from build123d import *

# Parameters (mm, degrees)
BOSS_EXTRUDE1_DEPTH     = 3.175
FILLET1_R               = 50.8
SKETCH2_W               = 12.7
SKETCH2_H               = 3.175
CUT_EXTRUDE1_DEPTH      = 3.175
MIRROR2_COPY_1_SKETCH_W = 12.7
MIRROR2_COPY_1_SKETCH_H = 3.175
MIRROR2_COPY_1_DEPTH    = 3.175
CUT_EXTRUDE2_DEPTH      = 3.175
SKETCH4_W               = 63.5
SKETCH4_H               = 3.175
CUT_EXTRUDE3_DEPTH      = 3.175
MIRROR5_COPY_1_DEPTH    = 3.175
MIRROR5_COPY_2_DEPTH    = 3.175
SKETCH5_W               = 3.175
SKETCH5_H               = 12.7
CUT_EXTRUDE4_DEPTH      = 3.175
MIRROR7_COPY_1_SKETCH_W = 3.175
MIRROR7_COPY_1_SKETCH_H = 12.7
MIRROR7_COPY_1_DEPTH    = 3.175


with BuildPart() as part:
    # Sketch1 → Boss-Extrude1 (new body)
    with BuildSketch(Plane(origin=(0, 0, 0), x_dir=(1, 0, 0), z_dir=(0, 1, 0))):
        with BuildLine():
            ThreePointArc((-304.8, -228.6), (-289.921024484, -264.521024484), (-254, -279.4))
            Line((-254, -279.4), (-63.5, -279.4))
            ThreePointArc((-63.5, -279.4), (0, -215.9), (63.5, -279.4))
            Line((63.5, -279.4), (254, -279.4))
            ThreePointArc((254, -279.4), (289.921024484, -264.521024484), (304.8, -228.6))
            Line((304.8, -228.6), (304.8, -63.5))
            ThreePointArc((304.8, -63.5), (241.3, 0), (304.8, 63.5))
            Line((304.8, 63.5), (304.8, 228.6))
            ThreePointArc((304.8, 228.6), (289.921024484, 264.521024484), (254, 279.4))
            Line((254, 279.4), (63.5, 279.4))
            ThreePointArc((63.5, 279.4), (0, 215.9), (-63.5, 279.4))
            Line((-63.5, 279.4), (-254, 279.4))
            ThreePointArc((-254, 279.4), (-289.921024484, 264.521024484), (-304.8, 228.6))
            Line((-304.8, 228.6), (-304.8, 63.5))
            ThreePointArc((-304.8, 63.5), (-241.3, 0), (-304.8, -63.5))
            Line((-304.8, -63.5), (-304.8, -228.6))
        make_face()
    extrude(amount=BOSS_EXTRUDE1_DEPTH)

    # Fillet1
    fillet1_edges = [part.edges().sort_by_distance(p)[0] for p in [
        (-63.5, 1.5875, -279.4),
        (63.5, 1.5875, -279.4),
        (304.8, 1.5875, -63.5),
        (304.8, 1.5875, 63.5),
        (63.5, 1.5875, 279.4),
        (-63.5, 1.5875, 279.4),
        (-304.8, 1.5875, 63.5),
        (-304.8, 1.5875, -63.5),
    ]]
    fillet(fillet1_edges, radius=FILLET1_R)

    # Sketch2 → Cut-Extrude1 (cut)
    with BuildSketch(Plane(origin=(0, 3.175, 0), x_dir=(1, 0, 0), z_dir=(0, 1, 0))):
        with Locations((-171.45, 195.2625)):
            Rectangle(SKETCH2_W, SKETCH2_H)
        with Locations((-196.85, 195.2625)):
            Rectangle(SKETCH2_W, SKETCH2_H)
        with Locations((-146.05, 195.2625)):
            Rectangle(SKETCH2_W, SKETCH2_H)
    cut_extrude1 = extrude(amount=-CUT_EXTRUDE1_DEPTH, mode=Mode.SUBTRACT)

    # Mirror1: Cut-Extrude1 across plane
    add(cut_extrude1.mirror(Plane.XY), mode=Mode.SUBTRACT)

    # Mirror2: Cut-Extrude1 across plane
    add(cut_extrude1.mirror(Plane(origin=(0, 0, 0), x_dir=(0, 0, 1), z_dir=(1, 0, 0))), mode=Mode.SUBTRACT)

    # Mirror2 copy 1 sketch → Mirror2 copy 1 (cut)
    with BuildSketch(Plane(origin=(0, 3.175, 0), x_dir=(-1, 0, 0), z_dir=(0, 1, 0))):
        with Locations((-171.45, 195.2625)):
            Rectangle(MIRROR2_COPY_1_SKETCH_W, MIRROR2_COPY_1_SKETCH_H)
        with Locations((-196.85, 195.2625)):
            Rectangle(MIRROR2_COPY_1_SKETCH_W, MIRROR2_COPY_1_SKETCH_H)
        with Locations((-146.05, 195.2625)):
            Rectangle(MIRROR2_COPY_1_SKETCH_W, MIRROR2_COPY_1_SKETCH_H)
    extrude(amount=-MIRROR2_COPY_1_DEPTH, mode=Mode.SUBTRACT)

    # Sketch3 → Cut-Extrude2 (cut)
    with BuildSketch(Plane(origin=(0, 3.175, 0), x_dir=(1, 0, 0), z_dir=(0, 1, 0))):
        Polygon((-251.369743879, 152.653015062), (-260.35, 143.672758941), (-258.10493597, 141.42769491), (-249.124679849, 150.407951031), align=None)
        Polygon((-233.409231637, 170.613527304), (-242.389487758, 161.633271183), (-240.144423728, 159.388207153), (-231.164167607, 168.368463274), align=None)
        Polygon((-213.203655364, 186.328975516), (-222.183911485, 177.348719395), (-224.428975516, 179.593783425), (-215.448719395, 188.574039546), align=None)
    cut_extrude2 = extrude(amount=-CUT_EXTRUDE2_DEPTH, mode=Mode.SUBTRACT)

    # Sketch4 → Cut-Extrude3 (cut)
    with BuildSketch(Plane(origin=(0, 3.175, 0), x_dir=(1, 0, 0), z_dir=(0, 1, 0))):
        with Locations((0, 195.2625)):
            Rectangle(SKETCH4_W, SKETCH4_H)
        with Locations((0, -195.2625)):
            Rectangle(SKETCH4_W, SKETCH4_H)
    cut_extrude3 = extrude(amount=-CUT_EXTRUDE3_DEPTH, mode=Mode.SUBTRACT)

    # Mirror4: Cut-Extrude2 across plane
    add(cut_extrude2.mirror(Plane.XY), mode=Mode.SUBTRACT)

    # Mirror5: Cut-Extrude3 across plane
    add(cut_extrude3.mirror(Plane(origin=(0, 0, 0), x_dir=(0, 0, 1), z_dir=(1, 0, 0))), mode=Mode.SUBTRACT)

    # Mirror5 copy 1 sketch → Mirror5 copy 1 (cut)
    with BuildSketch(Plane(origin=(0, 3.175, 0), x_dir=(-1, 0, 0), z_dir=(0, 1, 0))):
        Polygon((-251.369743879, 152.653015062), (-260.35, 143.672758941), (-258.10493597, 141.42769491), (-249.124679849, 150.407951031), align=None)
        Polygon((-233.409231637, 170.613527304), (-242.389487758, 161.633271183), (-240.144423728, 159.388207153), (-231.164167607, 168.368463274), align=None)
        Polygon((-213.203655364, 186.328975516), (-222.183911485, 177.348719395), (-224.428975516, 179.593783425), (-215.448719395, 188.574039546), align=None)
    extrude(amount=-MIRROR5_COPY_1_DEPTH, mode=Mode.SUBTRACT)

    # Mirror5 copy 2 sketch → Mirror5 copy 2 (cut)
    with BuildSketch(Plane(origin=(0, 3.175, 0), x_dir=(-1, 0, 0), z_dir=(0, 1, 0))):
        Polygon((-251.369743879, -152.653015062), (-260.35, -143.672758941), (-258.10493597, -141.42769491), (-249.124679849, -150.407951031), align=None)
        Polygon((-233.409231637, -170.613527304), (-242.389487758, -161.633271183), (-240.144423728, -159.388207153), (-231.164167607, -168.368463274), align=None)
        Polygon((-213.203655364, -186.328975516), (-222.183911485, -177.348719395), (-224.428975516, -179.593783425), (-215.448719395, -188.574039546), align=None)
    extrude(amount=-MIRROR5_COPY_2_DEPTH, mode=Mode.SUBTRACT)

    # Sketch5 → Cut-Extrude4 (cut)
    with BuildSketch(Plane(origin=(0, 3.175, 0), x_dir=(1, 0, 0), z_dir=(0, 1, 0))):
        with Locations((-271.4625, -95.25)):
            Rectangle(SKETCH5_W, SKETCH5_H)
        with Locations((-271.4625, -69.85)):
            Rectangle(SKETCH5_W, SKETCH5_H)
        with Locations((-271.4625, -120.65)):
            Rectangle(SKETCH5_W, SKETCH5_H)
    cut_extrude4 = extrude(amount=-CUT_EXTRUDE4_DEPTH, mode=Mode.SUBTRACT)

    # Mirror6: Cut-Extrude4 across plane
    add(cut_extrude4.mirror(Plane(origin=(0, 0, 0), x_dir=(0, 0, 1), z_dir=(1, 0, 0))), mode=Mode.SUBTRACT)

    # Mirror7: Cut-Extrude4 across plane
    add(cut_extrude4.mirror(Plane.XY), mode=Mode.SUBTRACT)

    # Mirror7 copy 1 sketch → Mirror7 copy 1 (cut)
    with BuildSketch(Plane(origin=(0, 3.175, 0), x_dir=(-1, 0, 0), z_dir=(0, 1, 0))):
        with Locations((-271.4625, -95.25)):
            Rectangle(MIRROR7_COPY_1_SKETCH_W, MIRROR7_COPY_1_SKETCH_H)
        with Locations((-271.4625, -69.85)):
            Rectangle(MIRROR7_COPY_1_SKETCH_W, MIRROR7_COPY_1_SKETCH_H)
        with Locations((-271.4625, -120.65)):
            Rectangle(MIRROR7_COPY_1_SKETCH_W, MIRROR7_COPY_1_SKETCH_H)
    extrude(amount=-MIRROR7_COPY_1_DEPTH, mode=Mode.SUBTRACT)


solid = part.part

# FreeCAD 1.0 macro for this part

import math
import FreeCAD as App
import Part
import Sketcher
Q = App.Units.Quantity


def edges_at(feature, points):
    """Names of the edges that pass closest to the given points."""
    edges = feature.Shape.Edges
    near = lambda p: min(range(len(edges)), key=lambda i: edges[i].distToShape(Part.Vertex(*p))[0])
    return sorted({f"Edge{near(p) + 1}" for p in points})

doc = App.newDocument("Part")
body = doc.addObject("PartDesign::Body", "Body")

# Sketch on XZ plane
sketch1 = body.newObject("Sketcher::SketchObject", "Sketch")
sketch1.AttachmentSupport = (doc.getObject("XZ_Plane"), [""])
sketch1.MapMode = "FlatFace"
sketch1.addGeometry([
    Part.ArcOfCircle(Part.Circle(App.Vector(-254, 228.6, 0), App.Vector(0, 0, 1), 50.8), math.radians(90), math.radians(180)),  # 0
    Part.LineSegment(App.Vector(-254, 279.4, 0), App.Vector(-63.5, 279.4, 0)),  # 1
    Part.ArcOfCircle(Part.Circle(App.Vector(0, 279.4, 0), App.Vector(0, 0, 1), 63.5), math.radians(180), math.radians(360)),  # 2
    Part.LineSegment(App.Vector(63.5, 279.4, 0), App.Vector(254, 279.4, 0)),  # 3
    Part.ArcOfCircle(Part.Circle(App.Vector(254, 228.6, 0), App.Vector(0, 0, 1), 50.8), math.radians(0), math.radians(90)),  # 4
    Part.LineSegment(App.Vector(304.8, 228.6, 0), App.Vector(304.8, 63.5, 0)),  # 5
    Part.ArcOfCircle(Part.Circle(App.Vector(304.8, 0, 0), App.Vector(0, 0, 1), 63.5), math.radians(90), math.radians(270)),  # 6
    Part.LineSegment(App.Vector(304.8, -63.5, 0), App.Vector(304.8, -228.6, 0)),  # 7
    Part.ArcOfCircle(Part.Circle(App.Vector(254, -228.6, 0), App.Vector(0, 0, 1), 50.8), math.radians(-90), math.radians(0)),  # 8
    Part.LineSegment(App.Vector(254, -279.4, 0), App.Vector(63.5, -279.4, 0)),  # 9
    Part.ArcOfCircle(Part.Circle(App.Vector(0, -279.4, 0), App.Vector(0, 0, 1), 63.5), math.radians(0), math.radians(180)),  # 10
    Part.LineSegment(App.Vector(-63.5, -279.4, 0), App.Vector(-254, -279.4, 0)),  # 11
    Part.ArcOfCircle(Part.Circle(App.Vector(-254, -228.6, 0), App.Vector(0, 0, 1), 50.8), math.radians(-180), math.radians(-90)),  # 12
    Part.LineSegment(App.Vector(-304.8, -228.6, 0), App.Vector(-304.8, -63.5, 0)),  # 13
    Part.ArcOfCircle(Part.Circle(App.Vector(-304.8, 0, 0), App.Vector(0, 0, 1), 63.5), math.radians(-90), math.radians(90)),  # 14
    Part.LineSegment(App.Vector(-304.8, 63.5, 0), App.Vector(-304.8, 228.6, 0)),  # 15
], False)
sketch1.addConstraint([
    Sketcher.Constraint("Tangent", 0, 1, 1, 1),
    Sketcher.Constraint("Coincident", 1, 2, 2, 1),
    Sketcher.Constraint("Coincident", 2, 2, 3, 1),
    Sketcher.Constraint("Tangent", 3, 2, 4, 2),
    Sketcher.Constraint("Tangent", 4, 1, 5, 1),
    Sketcher.Constraint("Coincident", 5, 2, 6, 1),
    Sketcher.Constraint("Coincident", 6, 2, 7, 1),
    Sketcher.Constraint("Tangent", 7, 2, 8, 2),
    Sketcher.Constraint("Tangent", 8, 1, 9, 1),
    Sketcher.Constraint("Coincident", 9, 2, 10, 1),
    Sketcher.Constraint("Coincident", 10, 2, 11, 1),
    Sketcher.Constraint("Tangent", 11, 2, 12, 2),
    Sketcher.Constraint("Tangent", 12, 1, 13, 1),
    Sketcher.Constraint("Coincident", 13, 2, 14, 1),
    Sketcher.Constraint("Coincident", 14, 2, 15, 1),
    Sketcher.Constraint("Tangent", 15, 2, 0, 2),
    Sketcher.Constraint("Horizontal", 1),
    Sketcher.Constraint("Horizontal", 3),
    Sketcher.Constraint("Vertical", 5),
    Sketcher.Constraint("Vertical", 7),
    Sketcher.Constraint("Horizontal", 9),
    Sketcher.Constraint("Horizontal", 11),
    Sketcher.Constraint("Vertical", 13),
    Sketcher.Constraint("Vertical", 15),
    Sketcher.Constraint("Equal", 0, 4),
    Sketcher.Constraint("Equal", 2, 6),
    Sketcher.Constraint("Equal", 4, 8),
    Sketcher.Constraint("Equal", 6, 10),
    Sketcher.Constraint("Equal", 8, 12),
    Sketcher.Constraint("Equal", 10, 14),
    Sketcher.Constraint("Symmetric", 0, 3, 8, 3, -1, 1),
    Sketcher.Constraint("Symmetric", 2, 3, 10, 3, -1, 1),
    Sketcher.Constraint("Symmetric", 4, 3, 12, 3, -1, 1),
    Sketcher.Constraint("Symmetric", 6, 3, 14, 3, -1, 1),
    Sketcher.Constraint("Symmetric", 0, 3, 4, 3, -2),
    Sketcher.Constraint("PointOnObject", 2, 3, -2),
    Sketcher.Constraint("PointOnObject", 6, 3, -1),
    Sketcher.Constraint("Horizontal", 2, 3, 0, 1),
    Sketcher.Constraint("Vertical", 6, 3, 4, 1),
    Sketcher.Constraint("Radius", 0, Q("2 in")),
    Sketcher.Constraint("Radius", 2, Q("2.5 in")),
    Sketcher.Constraint("DistanceX", 1, 1, 1, 2, Q("7.5 in")),
    Sketcher.Constraint("DistanceY", 5, 2, 5, 1, Q("6.5 in")),
])
pad1 = body.newObject("PartDesign::Pad", "Pad")
pad1.Profile = sketch1
pad1.Length = Q("0.125 in")
pad1.Reversed = True
doc.recompute()

fillet = body.newObject("PartDesign::Fillet", "Fillet")
fillet.Base = (pad1, edges_at(pad1, [
    (-63.5, 1.587, -279.4),
    (63.5, 1.587, -279.4),
    (304.8, 1.587, -63.5),
    (304.8, 1.587, 63.5),
    (63.5, 1.587, 279.4),
    (-63.5, 1.587, 279.4),
    (-304.8, 1.587, 63.5),
    (-304.8, 1.587, -63.5),
]))
fillet.Radius = Q("2 in")

# Sketch on XZ plane
sketch2 = body.newObject("Sketcher::SketchObject", "Sketch001")
sketch2.AttachmentSupport = (doc.getObject("XZ_Plane"), [""])
sketch2.MapMode = "FlatFace"
sketch2.AttachmentOffset = App.Placement(App.Vector(0, 0, -0.125 * 25.4), App.Rotation())
sketch2.addGeometry([
    Part.LineSegment(App.Vector(-177.8, -196.85, 0), App.Vector(-177.8, -193.675, 0)),  # 0
    Part.LineSegment(App.Vector(-177.8, -193.675, 0), App.Vector(-165.1, -193.675, 0)),  # 1
    Part.LineSegment(App.Vector(-165.1, -193.675, 0), App.Vector(-165.1, -196.85, 0)),  # 2
    Part.LineSegment(App.Vector(-165.1, -196.85, 0), App.Vector(-177.8, -196.85, 0)),  # 3
    Part.LineSegment(App.Vector(-203.2, -196.85, 0), App.Vector(-203.2, -193.675, 0)),  # 4
    Part.LineSegment(App.Vector(-203.2, -193.675, 0), App.Vector(-190.5, -193.675, 0)),  # 5
    Part.LineSegment(App.Vector(-190.5, -193.675, 0), App.Vector(-190.5, -196.85, 0)),  # 6
    Part.LineSegment(App.Vector(-190.5, -196.85, 0), App.Vector(-203.2, -196.85, 0)),  # 7
    Part.LineSegment(App.Vector(-152.4, -196.85, 0), App.Vector(-152.4, -193.675, 0)),  # 8
    Part.LineSegment(App.Vector(-152.4, -193.675, 0), App.Vector(-139.7, -193.675, 0)),  # 9
    Part.LineSegment(App.Vector(-139.7, -193.675, 0), App.Vector(-139.7, -196.85, 0)),  # 10
    Part.LineSegment(App.Vector(-139.7, -196.85, 0), App.Vector(-152.4, -196.85, 0)),  # 11
], False)
sketch2.addConstraint([
    Sketcher.Constraint("Coincident", 0, 2, 1, 1),
    Sketcher.Constraint("Coincident", 1, 2, 2, 1),
    Sketcher.Constraint("Coincident", 2, 2, 3, 1),
    Sketcher.Constraint("Coincident", 3, 2, 0, 1),
    Sketcher.Constraint("Coincident", 4, 2, 5, 1),
    Sketcher.Constraint("Coincident", 5, 2, 6, 1),
    Sketcher.Constraint("Coincident", 6, 2, 7, 1),
    Sketcher.Constraint("Coincident", 7, 2, 4, 1),
    Sketcher.Constraint("Coincident", 8, 2, 9, 1),
    Sketcher.Constraint("Coincident", 9, 2, 10, 1),
    Sketcher.Constraint("Coincident", 10, 2, 11, 1),
    Sketcher.Constraint("Coincident", 11, 2, 8, 1),
    Sketcher.Constraint("Vertical", 0),
    Sketcher.Constraint("Horizontal", 1),
    Sketcher.Constraint("Vertical", 2),
    Sketcher.Constraint("Horizontal", 3),
    Sketcher.Constraint("Vertical", 4),
    Sketcher.Constraint("Horizontal", 5),
    Sketcher.Constraint("Vertical", 6),
    Sketcher.Constraint("Horizontal", 7),
    Sketcher.Constraint("Vertical", 8),
    Sketcher.Constraint("Horizontal", 9),
    Sketcher.Constraint("Vertical", 10),
    Sketcher.Constraint("Horizontal", 11),
    Sketcher.Constraint("Horizontal", 1, 2, 4, 2),
    Sketcher.Constraint("Horizontal", 3, 2, 6, 2),
    Sketcher.Constraint("Horizontal", 5, 2, 8, 2),
    Sketcher.Constraint("Horizontal", 7, 2, 10, 2),
    Sketcher.Constraint("Equal", 3, 5),
    Sketcher.Constraint("Equal", 7, 9),
    Sketcher.Constraint("DistanceX", 1, 1, 1, 2, Q("0.5 in")),
    Sketcher.Constraint("DistanceX", 0, 2, -1, 1, Q("7 in")),
    Sketcher.Constraint("DistanceX", 4, 2, -1, 1, Q("8 in")),
    Sketcher.Constraint("DistanceX", 8, 2, -1, 1, Q("6 in")),
    Sketcher.Constraint("DistanceY", 0, 1, 0, 2, Q("0.125 in")),
    Sketcher.Constraint("DistanceY", 2, 2, -1, 1, Q("7.75 in")),
])
pocket1 = body.newObject("PartDesign::Pocket", "Pocket")
pocket1.Profile = sketch2
pocket1.Length = Q("0.125 in")
pocket1.Reversed = True
doc.recompute()

mirrored = body.newObject("PartDesign::Mirrored", "Mirrored")
mirrored.Originals = [pocket1]
mirrored.MirrorPlane = (doc.getObject("XY_Plane"), [""])
body.Tip = mirrored
doc.recompute()

mirrored2 = body.newObject("PartDesign::Mirrored", "Mirrored001")
mirrored2.Originals = [pocket1]
mirrored2.MirrorPlane = (doc.getObject("YZ_Plane"), [""])
body.Tip = mirrored2

# Sketch on XZ plane
sketch3 = body.newObject("Sketcher::SketchObject", "Sketch002")
sketch3.AttachmentSupport = (doc.getObject("XZ_Plane"), [""])
sketch3.MapMode = "FlatFace"
sketch3.AttachmentOffset = App.Placement(App.Vector(0, 0, -0.125 * 25.4), App.Rotation())
sketch3.addGeometry([
    Part.LineSegment(App.Vector(177.8, 196.85, 0), App.Vector(177.8, 193.675, 0)),  # 0
    Part.LineSegment(App.Vector(177.8, 193.675, 0), App.Vector(165.1, 193.675, 0)),  # 1
    Part.LineSegment(App.Vector(165.1, 193.675, 0), App.Vector(165.1, 196.85, 0)),  # 2
    Part.LineSegment(App.Vector(165.1, 196.85, 0), App.Vector(177.8, 196.85, 0)),  # 3
    Part.LineSegment(App.Vector(203.2, 196.85, 0), App.Vector(203.2, 193.675, 0)),  # 4
    Part.LineSegment(App.Vector(203.2, 193.675, 0), App.Vector(190.5, 193.675, 0)),  # 5
    Part.LineSegment(App.Vector(190.5, 193.675, 0), App.Vector(190.5, 196.85, 0)),  # 6
    Part.LineSegment(App.Vector(190.5, 196.85, 0), App.Vector(203.2, 196.85, 0)),  # 7
    Part.LineSegment(App.Vector(152.4, 196.85, 0), App.Vector(152.4, 193.675, 0)),  # 8
    Part.LineSegment(App.Vector(152.4, 193.675, 0), App.Vector(139.7, 193.675, 0)),  # 9
    Part.LineSegment(App.Vector(139.7, 193.675, 0), App.Vector(139.7, 196.85, 0)),  # 10
    Part.LineSegment(App.Vector(139.7, 196.85, 0), App.Vector(152.4, 196.85, 0)),  # 11
], False)
sketch3.addConstraint([
    Sketcher.Constraint("Coincident", 0, 2, 1, 1),
    Sketcher.Constraint("Coincident", 1, 2, 2, 1),
    Sketcher.Constraint("Coincident", 2, 2, 3, 1),
    Sketcher.Constraint("Coincident", 3, 2, 0, 1),
    Sketcher.Constraint("Coincident", 4, 2, 5, 1),
    Sketcher.Constraint("Coincident", 5, 2, 6, 1),
    Sketcher.Constraint("Coincident", 6, 2, 7, 1),
    Sketcher.Constraint("Coincident", 7, 2, 4, 1),
    Sketcher.Constraint("Coincident", 8, 2, 9, 1),
    Sketcher.Constraint("Coincident", 9, 2, 10, 1),
    Sketcher.Constraint("Coincident", 10, 2, 11, 1),
    Sketcher.Constraint("Coincident", 11, 2, 8, 1),
    Sketcher.Constraint("Vertical", 0),
    Sketcher.Constraint("Horizontal", 1),
    Sketcher.Constraint("Vertical", 2),
    Sketcher.Constraint("Horizontal", 3),
    Sketcher.Constraint("Vertical", 4),
    Sketcher.Constraint("Horizontal", 5),
    Sketcher.Constraint("Vertical", 6),
    Sketcher.Constraint("Horizontal", 7),
    Sketcher.Constraint("Vertical", 8),
    Sketcher.Constraint("Horizontal", 9),
    Sketcher.Constraint("Vertical", 10),
    Sketcher.Constraint("Horizontal", 11),
    Sketcher.Constraint("Horizontal", 1, 2, 4, 2),
    Sketcher.Constraint("Horizontal", 3, 2, 6, 2),
    Sketcher.Constraint("Horizontal", 5, 2, 8, 2),
    Sketcher.Constraint("Horizontal", 7, 2, 10, 2),
    Sketcher.Constraint("Equal", 3, 5),
    Sketcher.Constraint("Equal", 7, 9),
    Sketcher.Constraint("DistanceX", 1, 2, 1, 1, Q("0.5 in")),
    Sketcher.Constraint("DistanceX", -1, 1, 0, 2, Q("7 in")),
    Sketcher.Constraint("DistanceX", -1, 1, 4, 2, Q("8 in")),
    Sketcher.Constraint("DistanceX", -1, 1, 8, 2, Q("6 in")),
    Sketcher.Constraint("DistanceY", 0, 2, 0, 1, Q("0.125 in")),
    Sketcher.Constraint("DistanceY", -1, 1, 2, 2, Q("7.75 in")),
])
pocket2 = body.newObject("PartDesign::Pocket", "Pocket001")
pocket2.Profile = sketch3
pocket2.Length = Q("0.125 in")
pocket2.Reversed = True

# Sketch on XZ plane
sketch4 = body.newObject("Sketcher::SketchObject", "Sketch003")
sketch4.AttachmentSupport = (doc.getObject("XZ_Plane"), [""])
sketch4.MapMode = "FlatFace"
sketch4.AttachmentOffset = App.Placement(App.Vector(0, 0, -0.125 * 25.4), App.Rotation())
sketch4.addGeometry([
    Part.LineSegment(App.Vector(-251.369744, -152.653015, 0), App.Vector(-260.35, -143.672759, 0)),  # 0
    Part.LineSegment(App.Vector(-260.35, -143.672759, 0), App.Vector(-258.104936, -141.427695, 0)),  # 1
    Part.LineSegment(App.Vector(-258.104936, -141.427695, 0), App.Vector(-249.12468, -150.407951, 0)),  # 2
    Part.LineSegment(App.Vector(-249.12468, -150.407951, 0), App.Vector(-251.369744, -152.653015, 0)),  # 3
    Part.LineSegment(App.Vector(-233.409232, -170.613527, 0), App.Vector(-242.389488, -161.633271, 0)),  # 4
    Part.LineSegment(App.Vector(-242.389488, -161.633271, 0), App.Vector(-240.144424, -159.388207, 0)),  # 5
    Part.LineSegment(App.Vector(-240.144424, -159.388207, 0), App.Vector(-231.164168, -168.368463, 0)),  # 6
    Part.LineSegment(App.Vector(-231.164168, -168.368463, 0), App.Vector(-233.409232, -170.613527, 0)),  # 7
    Part.LineSegment(App.Vector(-222.183911, -177.348719, 0), App.Vector(-213.203655, -186.328976, 0)),  # 8
    Part.LineSegment(App.Vector(-213.203655, -186.328976, 0), App.Vector(-215.448719, -188.57404, 0)),  # 9
    Part.LineSegment(App.Vector(-215.448719, -188.57404, 0), App.Vector(-224.428976, -179.593783, 0)),  # 10
    Part.LineSegment(App.Vector(-224.428976, -179.593783, 0), App.Vector(-222.183911, -177.348719, 0)),  # 11
], False)
sketch4.addConstraint([
    Sketcher.Constraint("Coincident", 0, 2, 1, 1),
    Sketcher.Constraint("Coincident", 1, 2, 2, 1),
    Sketcher.Constraint("Coincident", 2, 2, 3, 1),
    Sketcher.Constraint("Coincident", 3, 2, 0, 1),
    Sketcher.Constraint("Coincident", 4, 2, 5, 1),
    Sketcher.Constraint("Coincident", 5, 2, 6, 1),
    Sketcher.Constraint("Coincident", 6, 2, 7, 1),
    Sketcher.Constraint("Coincident", 7, 2, 4, 1),
    Sketcher.Constraint("Coincident", 8, 2, 9, 1),
    Sketcher.Constraint("Coincident", 9, 2, 10, 1),
    Sketcher.Constraint("Coincident", 10, 2, 11, 1),
    Sketcher.Constraint("Coincident", 11, 2, 8, 1),
    Sketcher.Constraint("Perpendicular", 0, 1),
    Sketcher.Constraint("Perpendicular", 1, 2),
    Sketcher.Constraint("Perpendicular", 2, 3),
    Sketcher.Constraint("Perpendicular", 3, 4),
    Sketcher.Constraint("Perpendicular", 4, 5),
    Sketcher.Constraint("Perpendicular", 5, 6),
    Sketcher.Constraint("Perpendicular", 6, 7),
    Sketcher.Constraint("Perpendicular", 7, 8),
    Sketcher.Constraint("Perpendicular", 8, 9),
    Sketcher.Constraint("Perpendicular", 9, 10),
    Sketcher.Constraint("Perpendicular", 10, 11),
    Sketcher.Constraint("Equal", 2, 4),
    Sketcher.Constraint("Equal", 3, 5),
    Sketcher.Constraint("Equal", 6, 8),
    Sketcher.Constraint("Equal", 7, 9),
    Sketcher.Constraint("Angle", 0, Q("135 deg")),
    Sketcher.Constraint("Distance", 0, Q("0.5 in")),
    Sketcher.Constraint("DistanceX", 0, 2, -1, 1, Q("10.25 in")),
    Sketcher.Constraint("Distance", 1, Q("0.125 in")),
    Sketcher.Constraint("DistanceY", 0, 2, -1, 1, Q("143.672759 mm")),
    Sketcher.Constraint("DistanceY", 4, 2, -1, 1, Q("161.633271 mm")),
    Sketcher.Constraint("DistanceX", 7, 2, -1, 1, Q("233.409232 mm")),
    Sketcher.Constraint("DistanceX", 9, 2, -1, 1, Q("215.448719 mm")),
    Sketcher.Constraint("DistanceY", 9, 2, -1, 1, Q("188.57404 mm")),
])
pocket3 = body.newObject("PartDesign::Pocket", "Pocket002")
pocket3.Profile = sketch4
pocket3.Length = Q("0.125 in")
pocket3.Reversed = True

# Sketch on XZ plane
sketch5 = body.newObject("Sketcher::SketchObject", "Sketch004")
sketch5.AttachmentSupport = (doc.getObject("XZ_Plane"), [""])
sketch5.MapMode = "FlatFace"
sketch5.AttachmentOffset = App.Placement(App.Vector(0, 0, -0.125 * 25.4), App.Rotation())
sketch5.addGeometry([
    Part.LineSegment(App.Vector(-31.75, -196.85, 0), App.Vector(-31.75, -193.675, 0)),  # 0
    Part.LineSegment(App.Vector(-31.75, -193.675, 0), App.Vector(31.75, -193.675, 0)),  # 1
    Part.LineSegment(App.Vector(31.75, -193.675, 0), App.Vector(31.75, -196.85, 0)),  # 2
    Part.LineSegment(App.Vector(31.75, -196.85, 0), App.Vector(-31.75, -196.85, 0)),  # 3
    Part.LineSegment(App.Vector(-31.75, 193.675, 0), App.Vector(-31.75, 196.85, 0)),  # 4
    Part.LineSegment(App.Vector(-31.75, 196.85, 0), App.Vector(31.75, 196.85, 0)),  # 5
    Part.LineSegment(App.Vector(31.75, 196.85, 0), App.Vector(31.75, 193.675, 0)),  # 6
    Part.LineSegment(App.Vector(31.75, 193.675, 0), App.Vector(-31.75, 193.675, 0)),  # 7
], False)
sketch5.addConstraint([
    Sketcher.Constraint("Coincident", 0, 2, 1, 1),
    Sketcher.Constraint("Coincident", 1, 2, 2, 1),
    Sketcher.Constraint("Coincident", 2, 2, 3, 1),
    Sketcher.Constraint("Coincident", 3, 2, 0, 1),
    Sketcher.Constraint("Coincident", 4, 2, 5, 1),
    Sketcher.Constraint("Coincident", 5, 2, 6, 1),
    Sketcher.Constraint("Coincident", 6, 2, 7, 1),
    Sketcher.Constraint("Coincident", 7, 2, 4, 1),
    Sketcher.Constraint("Vertical", 0),
    Sketcher.Constraint("Horizontal", 1),
    Sketcher.Constraint("Vertical", 2),
    Sketcher.Constraint("Horizontal", 3),
    Sketcher.Constraint("Vertical", 4),
    Sketcher.Constraint("Horizontal", 5),
    Sketcher.Constraint("Vertical", 6),
    Sketcher.Constraint("Horizontal", 7),
    Sketcher.Constraint("Symmetric", 2, 2, 4, 2, -1, 1),
    Sketcher.Constraint("Symmetric", 0, 2, 6, 2, -1, 1),
    Sketcher.Constraint("Vertical", 3, 2, 4, 2),
    Sketcher.Constraint("DistanceX", 1, 1, 1, 2, Q("2.5 in")),
    Sketcher.Constraint("DistanceY", 3, 2, 4, 2, Q("15.5 in")),
    Sketcher.Constraint("DistanceY", 0, 1, 0, 2, Q("0.125 in")),
])
pocket4 = body.newObject("PartDesign::Pocket", "Pocket003")
pocket4.Profile = sketch5
pocket4.Length = Q("0.125 in")
pocket4.Reversed = True
doc.recompute()

mirrored3 = body.newObject("PartDesign::Mirrored", "Mirrored002")
mirrored3.Originals = [pocket3]
mirrored3.MirrorPlane = (doc.getObject("XY_Plane"), [""])
body.Tip = mirrored3
doc.recompute()

mirrored4 = body.newObject("PartDesign::Mirrored", "Mirrored003")
mirrored4.Originals = [pocket4]
mirrored4.MirrorPlane = (doc.getObject("YZ_Plane"), [""])
body.Tip = mirrored4

# Sketch on XZ plane
sketch6 = body.newObject("Sketcher::SketchObject", "Sketch005")
sketch6.AttachmentSupport = (doc.getObject("XZ_Plane"), [""])
sketch6.MapMode = "FlatFace"
sketch6.AttachmentOffset = App.Placement(App.Vector(0, 0, -0.125 * 25.4), App.Rotation())
sketch6.addGeometry([
    Part.LineSegment(App.Vector(251.369744, 152.653015, 0), App.Vector(260.35, 143.672759, 0)),  # 0
    Part.LineSegment(App.Vector(260.35, 143.672759, 0), App.Vector(258.104936, 141.427695, 0)),  # 1
    Part.LineSegment(App.Vector(258.104936, 141.427695, 0), App.Vector(249.12468, 150.407951, 0)),  # 2
    Part.LineSegment(App.Vector(249.12468, 150.407951, 0), App.Vector(251.369744, 152.653015, 0)),  # 3
    Part.LineSegment(App.Vector(233.409232, 170.613527, 0), App.Vector(242.389488, 161.633271, 0)),  # 4
    Part.LineSegment(App.Vector(242.389488, 161.633271, 0), App.Vector(240.144424, 159.388207, 0)),  # 5
    Part.LineSegment(App.Vector(240.144424, 159.388207, 0), App.Vector(231.164168, 168.368463, 0)),  # 6
    Part.LineSegment(App.Vector(231.164168, 168.368463, 0), App.Vector(233.409232, 170.613527, 0)),  # 7
    Part.LineSegment(App.Vector(222.183911, 177.348719, 0), App.Vector(213.203655, 186.328976, 0)),  # 8
    Part.LineSegment(App.Vector(213.203655, 186.328976, 0), App.Vector(215.448719, 188.57404, 0)),  # 9
    Part.LineSegment(App.Vector(215.448719, 188.57404, 0), App.Vector(224.428976, 179.593783, 0)),  # 10
    Part.LineSegment(App.Vector(224.428976, 179.593783, 0), App.Vector(222.183911, 177.348719, 0)),  # 11
], False)
sketch6.addConstraint([
    Sketcher.Constraint("Coincident", 0, 2, 1, 1),
    Sketcher.Constraint("Coincident", 1, 2, 2, 1),
    Sketcher.Constraint("Coincident", 2, 2, 3, 1),
    Sketcher.Constraint("Coincident", 3, 2, 0, 1),
    Sketcher.Constraint("Coincident", 4, 2, 5, 1),
    Sketcher.Constraint("Coincident", 5, 2, 6, 1),
    Sketcher.Constraint("Coincident", 6, 2, 7, 1),
    Sketcher.Constraint("Coincident", 7, 2, 4, 1),
    Sketcher.Constraint("Coincident", 8, 2, 9, 1),
    Sketcher.Constraint("Coincident", 9, 2, 10, 1),
    Sketcher.Constraint("Coincident", 10, 2, 11, 1),
    Sketcher.Constraint("Coincident", 11, 2, 8, 1),
    Sketcher.Constraint("Perpendicular", 0, 1),
    Sketcher.Constraint("Perpendicular", 1, 2),
    Sketcher.Constraint("Perpendicular", 2, 3),
    Sketcher.Constraint("Perpendicular", 3, 4),
    Sketcher.Constraint("Perpendicular", 4, 5),
    Sketcher.Constraint("Perpendicular", 5, 6),
    Sketcher.Constraint("Perpendicular", 6, 7),
    Sketcher.Constraint("Perpendicular", 7, 8),
    Sketcher.Constraint("Perpendicular", 8, 9),
    Sketcher.Constraint("Perpendicular", 9, 10),
    Sketcher.Constraint("Perpendicular", 10, 11),
    Sketcher.Constraint("Equal", 2, 4),
    Sketcher.Constraint("Equal", 3, 5),
    Sketcher.Constraint("Equal", 6, 8),
    Sketcher.Constraint("Equal", 7, 9),
    Sketcher.Constraint("Angle", 0, Q("-45 deg")),
    Sketcher.Constraint("Distance", 0, Q("0.5 in")),
    Sketcher.Constraint("DistanceX", -1, 1, 0, 2, Q("10.25 in")),
    Sketcher.Constraint("Distance", 1, Q("0.125 in")),
    Sketcher.Constraint("DistanceY", -1, 1, 0, 2, Q("143.672759 mm")),
    Sketcher.Constraint("DistanceY", -1, 1, 4, 2, Q("161.633271 mm")),
    Sketcher.Constraint("DistanceX", -1, 1, 7, 2, Q("233.409232 mm")),
    Sketcher.Constraint("DistanceX", -1, 1, 9, 2, Q("215.448719 mm")),
    Sketcher.Constraint("DistanceY", -1, 1, 9, 2, Q("188.57404 mm")),
])
pocket5 = body.newObject("PartDesign::Pocket", "Pocket004")
pocket5.Profile = sketch6
pocket5.Length = Q("0.125 in")
pocket5.Reversed = True

# Sketch on XZ plane
sketch7 = body.newObject("Sketcher::SketchObject", "Sketch006")
sketch7.AttachmentSupport = (doc.getObject("XZ_Plane"), [""])
sketch7.MapMode = "FlatFace"
sketch7.AttachmentOffset = App.Placement(App.Vector(0, 0, -0.125 * 25.4), App.Rotation())
sketch7.addGeometry([
    Part.LineSegment(App.Vector(260.35, -143.672759, 0), App.Vector(251.369744, -152.653015, 0)),  # 0
    Part.LineSegment(App.Vector(251.369744, -152.653015, 0), App.Vector(249.12468, -150.407951, 0)),  # 1
    Part.LineSegment(App.Vector(249.12468, -150.407951, 0), App.Vector(258.104936, -141.427695, 0)),  # 2
    Part.LineSegment(App.Vector(258.104936, -141.427695, 0), App.Vector(260.35, -143.672759, 0)),  # 3
    Part.LineSegment(App.Vector(242.389488, -161.633271, 0), App.Vector(233.409232, -170.613527, 0)),  # 4
    Part.LineSegment(App.Vector(233.409232, -170.613527, 0), App.Vector(231.164168, -168.368463, 0)),  # 5
    Part.LineSegment(App.Vector(231.164168, -168.368463, 0), App.Vector(240.144424, -159.388207, 0)),  # 6
    Part.LineSegment(App.Vector(240.144424, -159.388207, 0), App.Vector(242.389488, -161.633271, 0)),  # 7
    Part.LineSegment(App.Vector(213.203655, -186.328976, 0), App.Vector(222.183911, -177.348719, 0)),  # 8
    Part.LineSegment(App.Vector(222.183911, -177.348719, 0), App.Vector(224.428976, -179.593783, 0)),  # 9
    Part.LineSegment(App.Vector(224.428976, -179.593783, 0), App.Vector(215.448719, -188.57404, 0)),  # 10
    Part.LineSegment(App.Vector(215.448719, -188.57404, 0), App.Vector(213.203655, -186.328976, 0)),  # 11
], False)
sketch7.addConstraint([
    Sketcher.Constraint("Coincident", 0, 2, 1, 1),
    Sketcher.Constraint("Coincident", 1, 2, 2, 1),
    Sketcher.Constraint("Coincident", 2, 2, 3, 1),
    Sketcher.Constraint("Coincident", 3, 2, 0, 1),
    Sketcher.Constraint("Coincident", 4, 2, 5, 1),
    Sketcher.Constraint("Coincident", 5, 2, 6, 1),
    Sketcher.Constraint("Coincident", 6, 2, 7, 1),
    Sketcher.Constraint("Coincident", 7, 2, 4, 1),
    Sketcher.Constraint("Coincident", 8, 2, 9, 1),
    Sketcher.Constraint("Coincident", 9, 2, 10, 1),
    Sketcher.Constraint("Coincident", 10, 2, 11, 1),
    Sketcher.Constraint("Coincident", 11, 2, 8, 1),
    Sketcher.Constraint("Perpendicular", 0, 1),
    Sketcher.Constraint("Perpendicular", 1, 2),
    Sketcher.Constraint("Perpendicular", 2, 3),
    Sketcher.Constraint("Perpendicular", 3, 4),
    Sketcher.Constraint("Perpendicular", 4, 5),
    Sketcher.Constraint("Perpendicular", 5, 6),
    Sketcher.Constraint("Perpendicular", 6, 7),
    Sketcher.Constraint("Perpendicular", 7, 8),
    Sketcher.Constraint("Perpendicular", 8, 9),
    Sketcher.Constraint("Perpendicular", 9, 10),
    Sketcher.Constraint("Perpendicular", 10, 11),
    Sketcher.Constraint("Equal", 2, 4),
    Sketcher.Constraint("Equal", 3, 5),
    Sketcher.Constraint("Equal", 6, 8),
    Sketcher.Constraint("Equal", 7, 9),
    Sketcher.Constraint("Angle", 0, Q("-135 deg")),
    Sketcher.Constraint("Distance", 0, Q("0.5 in")),
    Sketcher.Constraint("DistanceX", -1, 1, 3, 2, Q("10.25 in")),
    Sketcher.Constraint("Distance", 1, Q("0.125 in")),
    Sketcher.Constraint("DistanceY", 1, 2, -1, 1, Q("150.407951 mm")),
    Sketcher.Constraint("DistanceX", -1, 1, 4, 2, Q("233.409232 mm")),
    Sketcher.Constraint("DistanceY", 7, 2, -1, 1, Q("161.633271 mm")),
    Sketcher.Constraint("DistanceX", -1, 1, 8, 2, Q("222.183911 mm")),
    Sketcher.Constraint("DistanceY", 8, 2, -1, 1, Q("177.348719 mm")),
])
pocket6 = body.newObject("PartDesign::Pocket", "Pocket005")
pocket6.Profile = sketch7
pocket6.Length = Q("0.125 in")
pocket6.Reversed = True

# Sketch on XZ plane
sketch8 = body.newObject("Sketcher::SketchObject", "Sketch007")
sketch8.AttachmentSupport = (doc.getObject("XZ_Plane"), [""])
sketch8.MapMode = "FlatFace"
sketch8.AttachmentOffset = App.Placement(App.Vector(0, 0, -0.125 * 25.4), App.Rotation())
sketch8.addGeometry([
    Part.LineSegment(App.Vector(-273.05, 88.9, 0), App.Vector(-273.05, 101.6, 0)),  # 0
    Part.LineSegment(App.Vector(-273.05, 101.6, 0), App.Vector(-269.875, 101.6, 0)),  # 1
    Part.LineSegment(App.Vector(-269.875, 101.6, 0), App.Vector(-269.875, 88.9, 0)),  # 2
    Part.LineSegment(App.Vector(-269.875, 88.9, 0), App.Vector(-273.05, 88.9, 0)),  # 3
    Part.LineSegment(App.Vector(-273.05, 63.5, 0), App.Vector(-273.05, 76.2, 0)),  # 4
    Part.LineSegment(App.Vector(-273.05, 76.2, 0), App.Vector(-269.875, 76.2, 0)),  # 5
    Part.LineSegment(App.Vector(-269.875, 76.2, 0), App.Vector(-269.875, 63.5, 0)),  # 6
    Part.LineSegment(App.Vector(-269.875, 63.5, 0), App.Vector(-273.05, 63.5, 0)),  # 7
    Part.LineSegment(App.Vector(-273.05, 114.3, 0), App.Vector(-273.05, 127, 0)),  # 8
    Part.LineSegment(App.Vector(-273.05, 127, 0), App.Vector(-269.875, 127, 0)),  # 9
    Part.LineSegment(App.Vector(-269.875, 127, 0), App.Vector(-269.875, 114.3, 0)),  # 10
    Part.LineSegment(App.Vector(-269.875, 114.3, 0), App.Vector(-273.05, 114.3, 0)),  # 11
], False)
sketch8.addConstraint([
    Sketcher.Constraint("Coincident", 0, 2, 1, 1),
    Sketcher.Constraint("Coincident", 1, 2, 2, 1),
    Sketcher.Constraint("Coincident", 2, 2, 3, 1),
    Sketcher.Constraint("Coincident", 3, 2, 0, 1),
    Sketcher.Constraint("Coincident", 4, 2, 5, 1),
    Sketcher.Constraint("Coincident", 5, 2, 6, 1),
    Sketcher.Constraint("Coincident", 6, 2, 7, 1),
    Sketcher.Constraint("Coincident", 7, 2, 4, 1),
    Sketcher.Constraint("Coincident", 8, 2, 9, 1),
    Sketcher.Constraint("Coincident", 9, 2, 10, 1),
    Sketcher.Constraint("Coincident", 10, 2, 11, 1),
    Sketcher.Constraint("Coincident", 11, 2, 8, 1),
    Sketcher.Constraint("Vertical", 0),
    Sketcher.Constraint("Horizontal", 1),
    Sketcher.Constraint("Vertical", 2),
    Sketcher.Constraint("Horizontal", 3),
    Sketcher.Constraint("Vertical", 4),
    Sketcher.Constraint("Horizontal", 5),
    Sketcher.Constraint("Vertical", 6),
    Sketcher.Constraint("Horizontal", 7),
    Sketcher.Constraint("Vertical", 8),
    Sketcher.Constraint("Horizontal", 9),
    Sketcher.Constraint("Vertical", 10),
    Sketcher.Constraint("Horizontal", 11),
    Sketcher.Constraint("Vertical", 3, 2, 4, 2),
    Sketcher.Constraint("Vertical", 2, 2, 5, 2),
    Sketcher.Constraint("Vertical", 7, 2, 8, 2),
    Sketcher.Constraint("Vertical", 6, 2, 9, 2),
    Sketcher.Constraint("Equal", 2, 4),
    Sketcher.Constraint("Equal", 6, 8),
    Sketcher.Constraint("DistanceY", 0, 1, 0, 2, Q("0.5 in")),
    Sketcher.Constraint("DistanceY", -1, 1, 0, 2, Q("4 in")),
    Sketcher.Constraint("DistanceY", -1, 1, 4, 2, Q("3 in")),
    Sketcher.Constraint("DistanceY", -1, 1, 8, 2, Q("5 in")),
    Sketcher.Constraint("DistanceX", 1, 1, 1, 2, Q("0.125 in")),
    Sketcher.Constraint("DistanceX", 0, 2, -1, 1, Q("10.75 in")),
])
pocket7 = body.newObject("PartDesign::Pocket", "Pocket006")
pocket7.Profile = sketch8
pocket7.Length = Q("0.125 in")
pocket7.Reversed = True
doc.recompute()

mirrored5 = body.newObject("PartDesign::Mirrored", "Mirrored004")
mirrored5.Originals = [pocket7]
mirrored5.MirrorPlane = (doc.getObject("YZ_Plane"), [""])
body.Tip = mirrored5
doc.recompute()

mirrored6 = body.newObject("PartDesign::Mirrored", "Mirrored005")
mirrored6.Originals = [pocket7]
mirrored6.MirrorPlane = (doc.getObject("XY_Plane"), [""])
body.Tip = mirrored6

# Sketch on XZ plane
sketch9 = body.newObject("Sketcher::SketchObject", "Sketch008")
sketch9.AttachmentSupport = (doc.getObject("XZ_Plane"), [""])
sketch9.MapMode = "FlatFace"
sketch9.AttachmentOffset = App.Placement(App.Vector(0, 0, -0.125 * 25.4), App.Rotation())
sketch9.addGeometry([
    Part.LineSegment(App.Vector(273.05, -88.9, 0), App.Vector(273.05, -101.6, 0)),  # 0
    Part.LineSegment(App.Vector(273.05, -101.6, 0), App.Vector(269.875, -101.6, 0)),  # 1
    Part.LineSegment(App.Vector(269.875, -101.6, 0), App.Vector(269.875, -88.9, 0)),  # 2
    Part.LineSegment(App.Vector(269.875, -88.9, 0), App.Vector(273.05, -88.9, 0)),  # 3
    Part.LineSegment(App.Vector(273.05, -63.5, 0), App.Vector(273.05, -76.2, 0)),  # 4
    Part.LineSegment(App.Vector(273.05, -76.2, 0), App.Vector(269.875, -76.2, 0)),  # 5
    Part.LineSegment(App.Vector(269.875, -76.2, 0), App.Vector(269.875, -63.5, 0)),  # 6
    Part.LineSegment(App.Vector(269.875, -63.5, 0), App.Vector(273.05, -63.5, 0)),  # 7
    Part.LineSegment(App.Vector(273.05, -114.3, 0), App.Vector(273.05, -127, 0)),  # 8
    Part.LineSegment(App.Vector(273.05, -127, 0), App.Vector(269.875, -127, 0)),  # 9
    Part.LineSegment(App.Vector(269.875, -127, 0), App.Vector(269.875, -114.3, 0)),  # 10
    Part.LineSegment(App.Vector(269.875, -114.3, 0), App.Vector(273.05, -114.3, 0)),  # 11
], False)
sketch9.addConstraint([
    Sketcher.Constraint("Coincident", 0, 2, 1, 1),
    Sketcher.Constraint("Coincident", 1, 2, 2, 1),
    Sketcher.Constraint("Coincident", 2, 2, 3, 1),
    Sketcher.Constraint("Coincident", 3, 2, 0, 1),
    Sketcher.Constraint("Coincident", 4, 2, 5, 1),
    Sketcher.Constraint("Coincident", 5, 2, 6, 1),
    Sketcher.Constraint("Coincident", 6, 2, 7, 1),
    Sketcher.Constraint("Coincident", 7, 2, 4, 1),
    Sketcher.Constraint("Coincident", 8, 2, 9, 1),
    Sketcher.Constraint("Coincident", 9, 2, 10, 1),
    Sketcher.Constraint("Coincident", 10, 2, 11, 1),
    Sketcher.Constraint("Coincident", 11, 2, 8, 1),
    Sketcher.Constraint("Vertical", 0),
    Sketcher.Constraint("Horizontal", 1),
    Sketcher.Constraint("Vertical", 2),
    Sketcher.Constraint("Horizontal", 3),
    Sketcher.Constraint("Vertical", 4),
    Sketcher.Constraint("Horizontal", 5),
    Sketcher.Constraint("Vertical", 6),
    Sketcher.Constraint("Horizontal", 7),
    Sketcher.Constraint("Vertical", 8),
    Sketcher.Constraint("Horizontal", 9),
    Sketcher.Constraint("Vertical", 10),
    Sketcher.Constraint("Horizontal", 11),
    Sketcher.Constraint("Vertical", 3, 2, 4, 2),
    Sketcher.Constraint("Vertical", 2, 2, 5, 2),
    Sketcher.Constraint("Vertical", 7, 2, 8, 2),
    Sketcher.Constraint("Vertical", 6, 2, 9, 2),
    Sketcher.Constraint("Equal", 2, 4),
    Sketcher.Constraint("Equal", 6, 8),
    Sketcher.Constraint("DistanceY", 0, 2, 0, 1, Q("0.5 in")),
    Sketcher.Constraint("DistanceY", 0, 2, -1, 1, Q("4 in")),
    Sketcher.Constraint("DistanceY", 4, 2, -1, 1, Q("3 in")),
    Sketcher.Constraint("DistanceY", 8, 2, -1, 1, Q("5 in")),
    Sketcher.Constraint("DistanceX", 1, 2, 1, 1, Q("0.125 in")),
    Sketcher.Constraint("DistanceX", -1, 1, 0, 2, Q("10.75 in")),
])
pocket8 = body.newObject("PartDesign::Pocket", "Pocket007")
pocket8.Profile = sketch9
pocket8.Length = Q("0.125 in")
pocket8.Reversed = True

doc.recompute()
